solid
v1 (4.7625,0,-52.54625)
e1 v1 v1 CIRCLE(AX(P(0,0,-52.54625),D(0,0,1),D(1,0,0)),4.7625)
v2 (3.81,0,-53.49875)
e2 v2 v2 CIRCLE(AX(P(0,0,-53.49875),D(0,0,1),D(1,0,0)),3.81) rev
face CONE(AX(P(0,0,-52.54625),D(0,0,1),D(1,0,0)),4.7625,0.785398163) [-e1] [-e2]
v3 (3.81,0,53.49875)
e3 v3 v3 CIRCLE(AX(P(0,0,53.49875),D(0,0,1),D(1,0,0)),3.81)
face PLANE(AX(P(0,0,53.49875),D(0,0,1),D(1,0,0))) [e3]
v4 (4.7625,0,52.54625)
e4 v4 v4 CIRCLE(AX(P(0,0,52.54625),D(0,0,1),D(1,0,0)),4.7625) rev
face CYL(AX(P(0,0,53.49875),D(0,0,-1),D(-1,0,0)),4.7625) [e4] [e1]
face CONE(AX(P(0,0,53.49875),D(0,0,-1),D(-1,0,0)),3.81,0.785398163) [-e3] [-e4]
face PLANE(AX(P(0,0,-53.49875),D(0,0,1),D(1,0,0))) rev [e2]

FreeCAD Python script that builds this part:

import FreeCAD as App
import Part
import Sketcher

V = App.Vector
Q = App.Units.Quantity


def edges_at(feature, points):
    """Names of the edges that pass closest to the given points."""
    edges = feature.Shape.Edges
    near = lambda p: min(range(len(edges)), key=lambda i: edges[i].distToShape(Part.Vertex(*p))[0])
    return sorted({f"Edge{near(p) + 1}" for p in points})

doc = App.newDocument("Part")
body = doc.addObject("PartDesign::Body", "Body")

sketch1 = body.newObject("Sketcher::SketchObject", "Sketch")
sketch1.AttachmentSupport = (doc.getObject("XY_Plane"), [""])
sketch1.MapMode = "FlatFace"
sketch1.addGeometry(Part.Circle(V(0, 0, 0), V(0, 0, 1), 4.8), False)
sketch1.addConstraint(Sketcher.Constraint("Coincident", 0, 3, -1, 1))
sketch1.addConstraint(Sketcher.Constraint("Diameter", 0, Q("0.375 in")))
pad1 = body.newObject("PartDesign::Pad", "Pad")
pad1.Profile = sketch1
pad1.Length = Q("4.2125 in")
pad1.Midplane = True
doc.recompute()

chamfer = body.newObject("PartDesign::Chamfer", "Chamfer")
chamfer.Base = (pad1, edges_at(pad1, [(-4.763, 0, -53.499), (-4.763, 0, 53.499)]))
chamfer.Size = Q("0.0375 in")

doc.recompute()
